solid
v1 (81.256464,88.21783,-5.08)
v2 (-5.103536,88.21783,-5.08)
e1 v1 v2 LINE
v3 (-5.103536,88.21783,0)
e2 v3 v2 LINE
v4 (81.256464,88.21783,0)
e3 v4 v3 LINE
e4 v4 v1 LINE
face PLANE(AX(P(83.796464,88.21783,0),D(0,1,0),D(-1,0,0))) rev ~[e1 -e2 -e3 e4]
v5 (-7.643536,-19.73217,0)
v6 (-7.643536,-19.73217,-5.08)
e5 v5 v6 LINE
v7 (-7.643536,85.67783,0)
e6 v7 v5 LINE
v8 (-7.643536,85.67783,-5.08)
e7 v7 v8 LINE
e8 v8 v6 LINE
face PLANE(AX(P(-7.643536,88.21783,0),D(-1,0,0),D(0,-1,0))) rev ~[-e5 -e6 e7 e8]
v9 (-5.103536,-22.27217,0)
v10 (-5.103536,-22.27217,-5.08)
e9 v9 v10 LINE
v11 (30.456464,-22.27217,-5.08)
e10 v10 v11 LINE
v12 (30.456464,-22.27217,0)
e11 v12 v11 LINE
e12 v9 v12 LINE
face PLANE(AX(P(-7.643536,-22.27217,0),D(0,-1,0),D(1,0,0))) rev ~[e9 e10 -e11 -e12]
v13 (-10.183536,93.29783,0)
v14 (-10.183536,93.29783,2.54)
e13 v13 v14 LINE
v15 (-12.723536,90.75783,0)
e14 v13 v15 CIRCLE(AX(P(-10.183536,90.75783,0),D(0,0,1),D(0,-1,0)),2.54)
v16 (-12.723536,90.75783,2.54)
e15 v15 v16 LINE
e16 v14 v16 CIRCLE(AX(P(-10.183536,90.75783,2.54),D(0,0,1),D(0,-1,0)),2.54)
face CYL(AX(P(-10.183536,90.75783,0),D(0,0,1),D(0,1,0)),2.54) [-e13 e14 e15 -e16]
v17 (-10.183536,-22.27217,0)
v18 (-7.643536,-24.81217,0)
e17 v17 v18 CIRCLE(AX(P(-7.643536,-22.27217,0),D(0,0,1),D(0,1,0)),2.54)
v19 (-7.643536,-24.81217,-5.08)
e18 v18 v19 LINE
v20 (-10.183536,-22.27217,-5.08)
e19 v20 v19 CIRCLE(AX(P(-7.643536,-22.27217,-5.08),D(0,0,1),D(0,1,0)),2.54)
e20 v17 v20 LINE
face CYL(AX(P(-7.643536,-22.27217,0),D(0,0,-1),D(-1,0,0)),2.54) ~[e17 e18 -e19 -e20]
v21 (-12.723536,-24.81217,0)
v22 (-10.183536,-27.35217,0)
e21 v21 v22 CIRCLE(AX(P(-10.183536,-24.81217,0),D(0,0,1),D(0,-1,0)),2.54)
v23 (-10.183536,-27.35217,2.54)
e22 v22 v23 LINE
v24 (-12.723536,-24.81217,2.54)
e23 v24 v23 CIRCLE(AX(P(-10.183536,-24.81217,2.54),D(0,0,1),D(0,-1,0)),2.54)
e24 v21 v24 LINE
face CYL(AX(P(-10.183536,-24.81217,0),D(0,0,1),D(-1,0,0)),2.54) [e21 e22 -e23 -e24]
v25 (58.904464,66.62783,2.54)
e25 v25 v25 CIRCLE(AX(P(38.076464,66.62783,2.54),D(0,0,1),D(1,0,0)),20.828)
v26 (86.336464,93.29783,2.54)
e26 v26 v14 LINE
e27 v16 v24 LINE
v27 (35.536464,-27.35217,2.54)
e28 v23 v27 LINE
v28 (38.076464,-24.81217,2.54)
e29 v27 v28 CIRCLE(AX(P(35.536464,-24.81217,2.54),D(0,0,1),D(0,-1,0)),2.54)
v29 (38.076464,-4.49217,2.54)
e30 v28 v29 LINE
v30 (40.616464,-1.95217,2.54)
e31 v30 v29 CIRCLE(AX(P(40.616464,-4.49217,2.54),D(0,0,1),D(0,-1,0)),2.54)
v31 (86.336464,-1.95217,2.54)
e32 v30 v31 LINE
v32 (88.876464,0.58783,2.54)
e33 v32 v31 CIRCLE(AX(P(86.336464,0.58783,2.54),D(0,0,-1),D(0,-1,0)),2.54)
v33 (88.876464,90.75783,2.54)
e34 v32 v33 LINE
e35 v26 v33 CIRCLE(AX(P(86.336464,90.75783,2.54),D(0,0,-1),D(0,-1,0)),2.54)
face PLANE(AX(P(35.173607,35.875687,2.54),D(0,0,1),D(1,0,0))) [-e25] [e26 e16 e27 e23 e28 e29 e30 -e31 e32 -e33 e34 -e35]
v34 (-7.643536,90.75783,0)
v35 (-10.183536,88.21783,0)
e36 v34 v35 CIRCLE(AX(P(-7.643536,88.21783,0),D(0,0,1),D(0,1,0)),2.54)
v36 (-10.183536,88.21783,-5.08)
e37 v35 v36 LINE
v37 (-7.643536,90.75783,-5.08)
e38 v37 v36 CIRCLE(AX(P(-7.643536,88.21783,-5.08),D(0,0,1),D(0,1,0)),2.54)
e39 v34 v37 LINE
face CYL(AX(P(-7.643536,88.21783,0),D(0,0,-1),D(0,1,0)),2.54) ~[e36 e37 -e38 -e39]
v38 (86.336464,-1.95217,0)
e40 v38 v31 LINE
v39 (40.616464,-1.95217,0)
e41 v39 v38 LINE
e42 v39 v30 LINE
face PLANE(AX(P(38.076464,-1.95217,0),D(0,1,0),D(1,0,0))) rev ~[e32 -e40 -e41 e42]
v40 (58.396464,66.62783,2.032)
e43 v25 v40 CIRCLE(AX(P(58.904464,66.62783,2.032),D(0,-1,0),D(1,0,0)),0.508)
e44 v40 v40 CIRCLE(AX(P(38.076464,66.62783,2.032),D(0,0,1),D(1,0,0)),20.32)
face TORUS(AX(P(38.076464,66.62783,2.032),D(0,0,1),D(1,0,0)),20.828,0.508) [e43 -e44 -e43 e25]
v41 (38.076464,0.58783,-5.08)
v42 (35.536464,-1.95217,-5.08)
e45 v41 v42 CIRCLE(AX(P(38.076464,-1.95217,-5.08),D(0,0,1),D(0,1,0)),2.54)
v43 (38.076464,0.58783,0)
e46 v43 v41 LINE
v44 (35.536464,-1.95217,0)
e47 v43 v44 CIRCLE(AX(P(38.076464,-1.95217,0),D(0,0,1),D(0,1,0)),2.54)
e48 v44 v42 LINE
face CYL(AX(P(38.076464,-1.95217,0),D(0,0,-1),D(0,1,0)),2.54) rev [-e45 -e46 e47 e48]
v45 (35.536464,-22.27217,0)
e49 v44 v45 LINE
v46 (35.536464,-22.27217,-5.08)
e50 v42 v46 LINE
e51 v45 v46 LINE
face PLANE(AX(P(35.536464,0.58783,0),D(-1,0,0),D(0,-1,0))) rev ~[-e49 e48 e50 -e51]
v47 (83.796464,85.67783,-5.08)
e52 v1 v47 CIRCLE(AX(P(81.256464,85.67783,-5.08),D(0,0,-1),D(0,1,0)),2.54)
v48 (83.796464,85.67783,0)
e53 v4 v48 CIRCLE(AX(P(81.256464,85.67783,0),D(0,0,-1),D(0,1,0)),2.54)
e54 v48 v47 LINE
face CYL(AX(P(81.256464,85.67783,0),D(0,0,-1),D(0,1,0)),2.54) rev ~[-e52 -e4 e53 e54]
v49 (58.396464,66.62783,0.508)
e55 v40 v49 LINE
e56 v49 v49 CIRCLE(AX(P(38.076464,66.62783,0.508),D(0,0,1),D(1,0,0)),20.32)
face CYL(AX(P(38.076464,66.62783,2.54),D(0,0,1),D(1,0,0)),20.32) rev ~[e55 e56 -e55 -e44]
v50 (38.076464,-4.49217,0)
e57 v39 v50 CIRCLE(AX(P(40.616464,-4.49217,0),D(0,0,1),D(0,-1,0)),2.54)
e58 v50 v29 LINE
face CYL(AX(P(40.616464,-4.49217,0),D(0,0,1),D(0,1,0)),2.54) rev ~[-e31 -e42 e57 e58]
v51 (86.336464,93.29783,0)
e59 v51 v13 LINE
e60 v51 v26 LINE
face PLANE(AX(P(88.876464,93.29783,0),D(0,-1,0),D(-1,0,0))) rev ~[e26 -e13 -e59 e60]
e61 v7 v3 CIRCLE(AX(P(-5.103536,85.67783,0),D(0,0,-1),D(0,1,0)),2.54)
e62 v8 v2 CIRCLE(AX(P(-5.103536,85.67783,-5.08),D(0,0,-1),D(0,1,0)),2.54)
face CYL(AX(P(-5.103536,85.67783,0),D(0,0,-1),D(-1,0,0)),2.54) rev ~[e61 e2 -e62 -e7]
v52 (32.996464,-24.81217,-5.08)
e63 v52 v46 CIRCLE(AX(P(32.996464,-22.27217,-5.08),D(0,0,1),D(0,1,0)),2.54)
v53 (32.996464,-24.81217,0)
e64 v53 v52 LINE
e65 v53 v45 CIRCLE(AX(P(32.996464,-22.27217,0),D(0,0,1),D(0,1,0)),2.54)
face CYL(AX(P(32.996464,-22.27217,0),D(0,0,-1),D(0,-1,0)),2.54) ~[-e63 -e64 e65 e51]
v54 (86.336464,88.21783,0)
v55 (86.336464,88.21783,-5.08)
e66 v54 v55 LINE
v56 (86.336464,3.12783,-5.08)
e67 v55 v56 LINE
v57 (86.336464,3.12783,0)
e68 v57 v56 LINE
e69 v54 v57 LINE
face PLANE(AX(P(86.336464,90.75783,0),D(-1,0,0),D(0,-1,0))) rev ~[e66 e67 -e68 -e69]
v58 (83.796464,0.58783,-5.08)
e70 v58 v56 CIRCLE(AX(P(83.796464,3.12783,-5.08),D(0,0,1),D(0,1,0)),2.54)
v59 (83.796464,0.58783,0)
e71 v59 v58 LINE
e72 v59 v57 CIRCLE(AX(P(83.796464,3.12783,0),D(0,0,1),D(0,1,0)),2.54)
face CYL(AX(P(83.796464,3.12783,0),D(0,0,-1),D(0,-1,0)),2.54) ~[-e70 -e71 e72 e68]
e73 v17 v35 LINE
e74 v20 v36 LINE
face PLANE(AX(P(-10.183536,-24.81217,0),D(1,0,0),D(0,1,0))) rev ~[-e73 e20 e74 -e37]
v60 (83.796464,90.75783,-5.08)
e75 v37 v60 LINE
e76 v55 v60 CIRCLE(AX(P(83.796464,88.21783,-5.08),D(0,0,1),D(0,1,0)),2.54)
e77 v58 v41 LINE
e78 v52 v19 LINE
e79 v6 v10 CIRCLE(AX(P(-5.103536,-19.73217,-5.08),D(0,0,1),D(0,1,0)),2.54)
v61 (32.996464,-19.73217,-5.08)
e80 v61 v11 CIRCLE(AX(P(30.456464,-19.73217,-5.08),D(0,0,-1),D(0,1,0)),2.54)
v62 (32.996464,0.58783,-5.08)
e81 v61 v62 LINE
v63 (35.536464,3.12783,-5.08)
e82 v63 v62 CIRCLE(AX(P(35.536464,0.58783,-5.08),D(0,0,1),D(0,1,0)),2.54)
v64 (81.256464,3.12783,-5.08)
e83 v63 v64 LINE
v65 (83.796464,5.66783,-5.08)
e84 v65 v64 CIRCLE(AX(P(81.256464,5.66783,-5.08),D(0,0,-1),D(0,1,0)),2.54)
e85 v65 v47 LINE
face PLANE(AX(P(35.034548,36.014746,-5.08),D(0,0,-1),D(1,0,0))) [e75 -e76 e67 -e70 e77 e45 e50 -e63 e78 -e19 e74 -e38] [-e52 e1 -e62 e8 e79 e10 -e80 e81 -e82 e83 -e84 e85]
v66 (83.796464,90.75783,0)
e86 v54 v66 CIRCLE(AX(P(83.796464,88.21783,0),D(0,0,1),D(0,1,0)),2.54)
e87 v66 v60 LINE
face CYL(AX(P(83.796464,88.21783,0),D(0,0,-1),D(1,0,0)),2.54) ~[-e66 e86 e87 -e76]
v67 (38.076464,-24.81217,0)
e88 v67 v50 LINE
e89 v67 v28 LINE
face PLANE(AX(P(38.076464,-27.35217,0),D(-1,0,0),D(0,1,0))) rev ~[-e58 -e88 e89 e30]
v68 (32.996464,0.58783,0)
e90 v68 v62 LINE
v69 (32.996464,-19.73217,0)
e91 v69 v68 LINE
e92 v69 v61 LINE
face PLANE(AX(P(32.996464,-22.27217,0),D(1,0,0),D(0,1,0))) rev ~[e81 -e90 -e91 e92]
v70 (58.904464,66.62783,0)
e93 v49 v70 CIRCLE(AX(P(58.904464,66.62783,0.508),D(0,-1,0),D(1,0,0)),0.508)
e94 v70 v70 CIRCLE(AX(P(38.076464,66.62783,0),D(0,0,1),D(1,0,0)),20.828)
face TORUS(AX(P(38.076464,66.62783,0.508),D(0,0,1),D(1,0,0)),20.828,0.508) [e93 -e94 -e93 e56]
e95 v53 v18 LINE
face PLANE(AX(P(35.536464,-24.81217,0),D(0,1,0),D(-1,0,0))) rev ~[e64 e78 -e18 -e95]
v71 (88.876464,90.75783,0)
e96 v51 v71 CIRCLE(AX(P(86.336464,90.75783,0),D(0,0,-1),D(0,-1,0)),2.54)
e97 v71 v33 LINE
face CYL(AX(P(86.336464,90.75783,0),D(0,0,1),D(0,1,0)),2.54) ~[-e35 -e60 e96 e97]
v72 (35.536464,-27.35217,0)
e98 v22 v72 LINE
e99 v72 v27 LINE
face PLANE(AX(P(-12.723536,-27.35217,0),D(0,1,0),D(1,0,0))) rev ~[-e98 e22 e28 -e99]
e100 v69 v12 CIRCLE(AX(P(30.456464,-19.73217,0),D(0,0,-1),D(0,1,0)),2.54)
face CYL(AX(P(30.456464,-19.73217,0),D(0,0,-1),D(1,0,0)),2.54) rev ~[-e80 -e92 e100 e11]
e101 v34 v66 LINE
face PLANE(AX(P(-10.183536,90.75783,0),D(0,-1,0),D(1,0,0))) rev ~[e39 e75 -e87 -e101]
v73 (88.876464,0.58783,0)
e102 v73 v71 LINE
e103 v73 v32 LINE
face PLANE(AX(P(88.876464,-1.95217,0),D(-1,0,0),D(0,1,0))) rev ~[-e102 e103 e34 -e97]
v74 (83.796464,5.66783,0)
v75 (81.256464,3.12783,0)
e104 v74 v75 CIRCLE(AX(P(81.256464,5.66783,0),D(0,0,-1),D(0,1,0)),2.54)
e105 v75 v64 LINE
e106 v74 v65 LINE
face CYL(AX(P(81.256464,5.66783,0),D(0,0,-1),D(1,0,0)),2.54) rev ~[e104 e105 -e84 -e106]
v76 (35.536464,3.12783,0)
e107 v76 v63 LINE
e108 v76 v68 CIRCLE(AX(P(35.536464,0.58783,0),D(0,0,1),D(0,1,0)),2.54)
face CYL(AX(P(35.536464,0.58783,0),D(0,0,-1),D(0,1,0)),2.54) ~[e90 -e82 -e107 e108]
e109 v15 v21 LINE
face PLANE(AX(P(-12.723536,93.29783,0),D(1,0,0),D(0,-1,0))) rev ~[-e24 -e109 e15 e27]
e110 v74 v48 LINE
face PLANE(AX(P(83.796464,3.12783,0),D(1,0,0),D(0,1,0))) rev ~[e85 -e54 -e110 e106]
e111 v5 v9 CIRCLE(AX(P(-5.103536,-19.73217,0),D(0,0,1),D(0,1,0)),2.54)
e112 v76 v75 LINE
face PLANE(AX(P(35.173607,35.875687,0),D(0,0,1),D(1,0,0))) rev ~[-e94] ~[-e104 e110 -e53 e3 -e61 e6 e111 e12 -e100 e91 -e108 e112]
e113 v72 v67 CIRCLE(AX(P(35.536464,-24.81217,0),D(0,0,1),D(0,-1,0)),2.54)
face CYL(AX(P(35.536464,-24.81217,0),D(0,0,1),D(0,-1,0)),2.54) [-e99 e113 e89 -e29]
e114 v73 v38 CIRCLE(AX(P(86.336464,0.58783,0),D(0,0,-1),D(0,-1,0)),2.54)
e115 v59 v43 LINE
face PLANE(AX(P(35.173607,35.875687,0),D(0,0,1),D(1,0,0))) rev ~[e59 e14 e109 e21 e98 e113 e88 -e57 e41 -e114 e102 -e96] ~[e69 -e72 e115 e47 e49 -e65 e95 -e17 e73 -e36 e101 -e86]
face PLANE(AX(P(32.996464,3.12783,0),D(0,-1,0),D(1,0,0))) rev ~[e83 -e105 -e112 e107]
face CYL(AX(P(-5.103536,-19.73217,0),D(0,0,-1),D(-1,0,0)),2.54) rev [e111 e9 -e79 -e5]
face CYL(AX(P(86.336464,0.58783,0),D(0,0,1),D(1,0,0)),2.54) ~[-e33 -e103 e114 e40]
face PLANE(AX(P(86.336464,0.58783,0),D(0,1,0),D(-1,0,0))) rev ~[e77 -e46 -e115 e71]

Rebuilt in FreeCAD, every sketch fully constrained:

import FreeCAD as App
import Part
import Sketcher
Q = App.Units.Quantity


def edges_at(feature, points):
    """Names of the edges that pass closest to the given points."""
    edges = feature.Shape.Edges
    near = lambda p: min(range(len(edges)), key=lambda i: edges[i].distToShape(Part.Vertex(*p))[0])
    return sorted({f"Edge{near(p) + 1}" for p in points})


def add_polygon(sketch, points):
    """Adds a closed chain of lines whose ends are joined by coincident constraints."""
    first, n = sketch.GeometryCount, len(points)
    for a, b in zip(points, points[1:] + points[:1]):
        sketch.addGeometry(Part.LineSegment(App.Vector(*a, 0), App.Vector(*b, 0)), False)
    for i in range(n):
        sketch.addConstraint(Sketcher.Constraint("Coincident", first + i, 2, first + (i + 1) % n, 1))

doc = App.newDocument("Part")
body = doc.addObject("PartDesign::Body", "Body")

sketch1 = body.newObject("Sketcher::SketchObject", "Sketch")
sketch1.AttachmentSupport = (doc.getObject("XY_Plane"), [""])
sketch1.MapMode = "FlatFace"
add_polygon(sketch1, [(89, 93), (-13, 93), (-13, -27), (38, -27), (38, -2), (89, -2)])
sketch1.addConstraint([
    Sketcher.Constraint("Horizontal", 0),
    Sketcher.Constraint("Vertical", 1),
    Sketcher.Constraint("Horizontal", 2),
    Sketcher.Constraint("Vertical", 3),
    Sketcher.Constraint("Horizontal", 4),
    Sketcher.Constraint("Vertical", 5),
    Sketcher.Constraint("Equal", 2, 4),
    Sketcher.Constraint("DistanceX", 0, 2, 0, 1, Q("4 in")),
    Sketcher.Constraint("DistanceY", 3, 1, 3, 2, Q("1 in")),
    Sketcher.Constraint("DistanceY", 1, 2, 1, 1, Q("4.75 in")),
    Sketcher.Constraint("DistanceY", -1, 1, 0, 2, 93.29783),
    Sketcher.Constraint("DistanceX", 0, 2, -1, 1, 12.723536),
])
pad1 = body.newObject("PartDesign::Pad", "Pad")
pad1.Profile = sketch1
pad1.Length = Q("0.1 in")

sketch2 = body.newObject("Sketcher::SketchObject", "Sketch001")
sketch2.AttachmentSupport = (doc.getObject("XY_Plane"), [""])
sketch2.MapMode = "FlatFace"
add_polygon(sketch2, [(36, 1), (36, -25), (-10, -25), (-10, 91), (86, 91), (86, 1)])
add_polygon(sketch2, [(-8, 88), (-8, -22), (33, -22), (33, 3), (84, 3), (84, 88)])
sketch2.addConstraint([
    Sketcher.Constraint("Vertical", 0),
    Sketcher.Constraint("Horizontal", 1),
    Sketcher.Constraint("Vertical", 2),
    Sketcher.Constraint("Horizontal", 3),
    Sketcher.Constraint("Vertical", 4),
    Sketcher.Constraint("Horizontal", 5),
    Sketcher.Constraint("Vertical", 6),
    Sketcher.Constraint("Horizontal", 7),
    Sketcher.Constraint("Vertical", 8),
    Sketcher.Constraint("Horizontal", 9),
    Sketcher.Constraint("Vertical", 10),
    Sketcher.Constraint("Horizontal", 11),
    Sketcher.Constraint("Equal", 5, 9),
    Sketcher.Constraint("Equal", 0, 8),
    Sketcher.Constraint("DistanceX", 5, 2, 5, 1, Q("2 in")),
    Sketcher.Constraint("DistanceY", 0, 2, 0, 1, Q("1 in")),
    Sketcher.Constraint("DistanceX", 1, 2, 1, 1, Q("1.8 in")),
    Sketcher.Constraint("DistanceX", 7, 1, 7, 2, Q("1.6 in")),
    Sketcher.Constraint("DistanceY", 2, 1, 2, 2, Q("4.55 in")),
    Sketcher.Constraint("DistanceY", 6, 2, 6, 1, Q("4.35 in")),
    Sketcher.Constraint("DistanceX", 1, 2, 6, 2, Q("0.1 in")),
    Sketcher.Constraint("DistanceY", 1, 2, 6, 2, Q("0.1 in")),
    Sketcher.Constraint("DistanceY", 0, 2, -1, 1, 24.81217),
    Sketcher.Constraint("DistanceX", -1, 1, 0, 2, 35.536464),
])
pad2 = body.newObject("PartDesign::Pad", "Pad001")
pad2.Profile = sketch2
pad2.Length = Q("0.2 in")
pad2.Reversed = True

sketch3 = body.newObject("Sketcher::SketchObject", "Sketch002")
sketch3.AttachmentSupport = (doc.getObject("XY_Plane"), [""])
sketch3.MapMode = "FlatFace"
sketch3.AttachmentOffset = App.Placement(App.Vector(0, 0, 0.1 * 25.4), App.Rotation())
sketch3.addGeometry(Part.Circle(App.Vector(38, 67, 0), App.Vector(0, 0, 1), 20), False)
sketch3.addConstraint([
    Sketcher.Constraint("Diameter", 0, Q("1.6 in")),
    Sketcher.Constraint("DistanceY", -1, 1, 0, 3, 66.62783),
    Sketcher.Constraint("DistanceX", -1, 1, 0, 3, 38.076464),
])
pocket1 = body.newObject("PartDesign::Pocket", "Pocket")
pocket1.Profile = sketch3
pocket1.Type = "ThroughAll"
doc.recompute()

fillet = body.newObject("PartDesign::Fillet", "Fillet")
fillet.Base = (pocket1, edges_at(pocket1, [
    (38.076, -27.352, 1.27),
    (35.536, -24.812, -2.54),
    (35.536, 0.588, -2.54),
    (38.076, -1.952, 1.27),
    (86.336, 0.588, -2.54),
    (88.876, -1.952, 1.27),
    (-12.724, -27.352, 1.27),
    (-10.184, -24.812, -2.54),
    (88.876, 93.298, 1.27),
    (86.336, 90.758, -2.54),
    (-12.724, 93.298, 1.27),
    (-10.184, 90.758, -2.54),
    (32.996, 3.128, -2.54),
    (32.996, -22.272, -2.54),
    (-7.644, -22.272, -2.54),
    (-7.644, 88.218, -2.54),
    (83.796, 88.218, -2.54),
    (83.796, 3.128, -2.54),
]))
fillet.Radius = Q("0.1 in")
doc.recompute()

fillet2 = body.newObject("PartDesign::Fillet", "Fillet001")
fillet2.Base = (fillet, edges_at(fillet, [(17.756, 66.628, 0), (17.756, 66.628, 2.54)]))
fillet2.Radius = Q("0.02 in")

doc.recompute()
